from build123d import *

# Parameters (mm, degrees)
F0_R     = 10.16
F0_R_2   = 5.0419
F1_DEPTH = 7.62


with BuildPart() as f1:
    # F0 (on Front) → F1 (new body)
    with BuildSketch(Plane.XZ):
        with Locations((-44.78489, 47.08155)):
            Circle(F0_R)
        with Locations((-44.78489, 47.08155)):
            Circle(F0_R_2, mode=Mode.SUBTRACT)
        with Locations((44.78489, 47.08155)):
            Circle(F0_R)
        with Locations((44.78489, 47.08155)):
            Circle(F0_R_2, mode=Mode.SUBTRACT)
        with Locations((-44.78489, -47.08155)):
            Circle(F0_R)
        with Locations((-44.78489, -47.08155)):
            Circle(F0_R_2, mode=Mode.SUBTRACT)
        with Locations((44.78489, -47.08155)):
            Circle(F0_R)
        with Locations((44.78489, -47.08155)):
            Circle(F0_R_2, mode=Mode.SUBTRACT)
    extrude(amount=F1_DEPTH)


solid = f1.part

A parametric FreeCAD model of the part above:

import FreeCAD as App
import Part
import Sketcher

V = App.Vector
Q = App.Units.Quantity

doc = App.newDocument("Part")
body = doc.addObject("PartDesign::Body", "Body")
body.AllowCompound = True

# Sketch on XZ plane
sketch1 = body.newObject("Sketcher::SketchObject", "Sketch")
sketch1.AttachmentSupport = (doc.getObject("XZ_Plane"), [""])
sketch1.MapMode = "FlatFace"
sketch1.addGeometry(Part.Circle(V(-45, 47, 0), V(0, 0, 1), 10), False)
sketch1.addGeometry(Part.Circle(V(-45, 47, 0), V(0, 0, 1), 5), False)
sketch1.addGeometry(Part.Circle(V(45, 47, 0), V(0, 0, 1), 10), False)
sketch1.addGeometry(Part.Circle(V(45, 47, 0), V(0, 0, 1), 5), False)
sketch1.addGeometry(Part.Circle(V(-45, -47, 0), V(0, 0, 1), 10), False)
sketch1.addGeometry(Part.Circle(V(-45, -47, 0), V(0, 0, 1), 5), False)
sketch1.addGeometry(Part.Circle(V(45, -47, 0), V(0, 0, 1), 10), False)
sketch1.addGeometry(Part.Circle(V(45, -47, 0), V(0, 0, 1), 5), False)
sketch1.addConstraint(Sketcher.Constraint("Coincident", 1, 3, 0, 3))
sketch1.addConstraint(Sketcher.Constraint("Coincident", 3, 3, 2, 3))
sketch1.addConstraint(Sketcher.Constraint("Coincident", 5, 3, 4, 3))
sketch1.addConstraint(Sketcher.Constraint("Coincident", 7, 3, 6, 3))
sketch1.addConstraint(Sketcher.Constraint("Equal", 0, 2))
sketch1.addConstraint(Sketcher.Constraint("Equal", 1, 3))
sketch1.addConstraint(Sketcher.Constraint("Equal", 2, 4))
sketch1.addConstraint(Sketcher.Constraint("Equal", 3, 5))
sketch1.addConstraint(Sketcher.Constraint("Equal", 4, 6))
sketch1.addConstraint(Sketcher.Constraint("Equal", 5, 7))
sketch1.addConstraint(Sketcher.Constraint("Symmetric", 2, 3, 4, 3, -1, 1))
sketch1.addConstraint(Sketcher.Constraint("Symmetric", 0, 3, 6, 3, -1, 1))
sketch1.addConstraint(Sketcher.Constraint("Symmetric", 0, 3, 2, 3, -2))
sketch1.addConstraint(Sketcher.Constraint("Diameter", 0, Q("0.8 in")))
sketch1.addConstraint(Sketcher.Constraint("Diameter", 1, Q("0.397 in")))
sketch1.addConstraint(Sketcher.Constraint("DistanceY", 4, 3, 0, 3, Q("94.1631 mm")))
sketch1.addConstraint(Sketcher.Constraint("DistanceX", 0, 3, -1, 1, Q("44.78489 mm")))
pad1 = body.newObject("PartDesign::Pad", "Pad")
pad1.Profile = sketch1
pad1.Length = Q("0.3 in")

doc.recompute()
